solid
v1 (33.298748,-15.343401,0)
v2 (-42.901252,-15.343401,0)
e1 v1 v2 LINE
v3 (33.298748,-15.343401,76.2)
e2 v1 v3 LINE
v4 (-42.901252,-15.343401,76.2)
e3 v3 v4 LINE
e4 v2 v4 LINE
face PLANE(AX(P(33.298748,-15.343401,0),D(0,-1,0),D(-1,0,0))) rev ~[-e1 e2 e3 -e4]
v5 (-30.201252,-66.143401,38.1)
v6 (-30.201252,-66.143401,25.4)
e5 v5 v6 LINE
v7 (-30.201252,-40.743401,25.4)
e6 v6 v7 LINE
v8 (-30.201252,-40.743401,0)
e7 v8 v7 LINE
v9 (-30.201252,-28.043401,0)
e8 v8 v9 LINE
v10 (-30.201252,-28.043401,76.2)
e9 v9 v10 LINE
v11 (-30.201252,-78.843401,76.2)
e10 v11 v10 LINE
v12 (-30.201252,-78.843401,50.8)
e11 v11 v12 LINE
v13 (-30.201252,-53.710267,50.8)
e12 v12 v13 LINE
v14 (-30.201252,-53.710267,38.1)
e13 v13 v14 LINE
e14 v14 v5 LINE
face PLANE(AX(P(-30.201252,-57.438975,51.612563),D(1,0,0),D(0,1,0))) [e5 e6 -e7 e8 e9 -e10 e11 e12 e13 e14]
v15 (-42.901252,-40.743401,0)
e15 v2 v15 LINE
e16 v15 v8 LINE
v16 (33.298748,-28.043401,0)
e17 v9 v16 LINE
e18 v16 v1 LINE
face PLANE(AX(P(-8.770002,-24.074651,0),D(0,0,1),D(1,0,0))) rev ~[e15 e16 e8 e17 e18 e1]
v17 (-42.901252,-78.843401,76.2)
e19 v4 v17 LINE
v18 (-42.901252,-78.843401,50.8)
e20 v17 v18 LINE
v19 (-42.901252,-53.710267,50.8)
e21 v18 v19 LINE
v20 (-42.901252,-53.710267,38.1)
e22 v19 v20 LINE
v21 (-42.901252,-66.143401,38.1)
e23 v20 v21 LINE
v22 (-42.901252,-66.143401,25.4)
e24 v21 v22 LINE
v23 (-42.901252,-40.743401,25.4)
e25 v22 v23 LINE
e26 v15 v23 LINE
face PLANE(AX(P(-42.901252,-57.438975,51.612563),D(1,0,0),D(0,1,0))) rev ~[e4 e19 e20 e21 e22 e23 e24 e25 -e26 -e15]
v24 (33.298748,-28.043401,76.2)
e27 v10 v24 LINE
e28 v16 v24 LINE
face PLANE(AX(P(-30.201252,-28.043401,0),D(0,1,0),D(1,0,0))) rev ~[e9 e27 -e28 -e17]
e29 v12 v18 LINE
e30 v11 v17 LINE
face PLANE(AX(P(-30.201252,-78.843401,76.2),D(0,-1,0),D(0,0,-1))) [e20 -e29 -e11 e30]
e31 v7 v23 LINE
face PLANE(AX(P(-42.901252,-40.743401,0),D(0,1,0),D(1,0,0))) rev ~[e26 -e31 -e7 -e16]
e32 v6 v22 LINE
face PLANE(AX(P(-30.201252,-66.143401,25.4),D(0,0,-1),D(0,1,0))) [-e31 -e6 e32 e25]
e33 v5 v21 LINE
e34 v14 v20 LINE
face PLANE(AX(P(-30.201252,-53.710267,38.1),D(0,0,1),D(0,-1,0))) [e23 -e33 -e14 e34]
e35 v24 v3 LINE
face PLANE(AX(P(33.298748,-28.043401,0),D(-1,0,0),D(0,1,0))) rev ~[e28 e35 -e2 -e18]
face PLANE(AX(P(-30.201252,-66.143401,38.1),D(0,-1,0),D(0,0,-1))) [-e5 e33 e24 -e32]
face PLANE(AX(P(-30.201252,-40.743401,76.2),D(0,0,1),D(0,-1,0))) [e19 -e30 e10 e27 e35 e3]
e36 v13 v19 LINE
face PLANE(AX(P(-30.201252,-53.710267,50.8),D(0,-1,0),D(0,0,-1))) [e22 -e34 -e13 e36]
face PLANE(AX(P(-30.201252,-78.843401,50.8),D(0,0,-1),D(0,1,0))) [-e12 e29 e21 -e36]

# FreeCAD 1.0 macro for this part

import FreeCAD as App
import Part
import Sketcher

V = App.Vector
Q = App.Units.Quantity


def add_polygon(sketch, points):
    """Adds a closed chain of lines whose ends are joined by coincident constraints."""
    first, n = sketch.GeometryCount, len(points)
    for a, b in zip(points, points[1:] + points[:1]):
        sketch.addGeometry(Part.LineSegment(App.Vector(*a, 0), App.Vector(*b, 0)), False)
    for i in range(n):
        sketch.addConstraint(Sketcher.Constraint("Coincident", first + i, 2, first + (i + 1) % n, 1))

doc = App.newDocument("Part")
body = doc.addObject("PartDesign::Body", "Body")

# Sketch on XY plane
sketch1 = doc.addObject("Sketcher::SketchObject", "Sketch")
body.addObject(sketch1)
sketch1.AttachmentSupport = (doc.XY_Plane, [""])
sketch1.MapMode = "FlatFace"
add_polygon(sketch1, [(-42.901252, -15.343401), (-42.901252, -40.743401), (-30.201252, -40.743401), (-30.201252, -28.043401), (33.298748, -28.043401), (33.298748, -15.343401)])  # lines 0-5
sketch1.addConstraint([
    Sketcher.Constraint("Vertical", 0),
    Sketcher.Constraint("Horizontal", 1),
    Sketcher.Constraint("Vertical", 2),
    Sketcher.Constraint("Horizontal", 3),
    Sketcher.Constraint("Vertical", 4),
    Sketcher.Constraint("Horizontal", 5),
    Sketcher.Constraint("Equal", 1, 2),
    Sketcher.Constraint("Equal", 2, 4),
    Sketcher.Constraint("DistanceX", 5, 2, 5, 1, Q("3 in")),
    Sketcher.Constraint("DistanceY", 0, 2, 0, 1, Q("1 in")),
    Sketcher.Constraint("DistanceY", 0, 2, -1, 1, Q("40.743401 mm")),
    Sketcher.Constraint("DistanceX", 1, 2, -1, 1, Q("30.201252 mm")),
])
pad1 = doc.addObject("PartDesign::Pad", "Pad")
body.addObject(pad1)
pad1.Profile = sketch1
pad1.Length = Q("3 in")

# Sketch on YZ plane
sketch2 = doc.addObject("Sketcher::SketchObject", "Sketch001")
body.addObject(sketch2)
sketch2.AttachmentSupport = (doc.YZ_Plane, [""])
sketch2.MapMode = "FlatFace"
sketch2.AttachmentOffset = App.Placement(V(0, 0, -30.201252), App.Rotation())
add_polygon(sketch2, [(-40.743401, 25.4), (-40.743401, 76.2), (-78.843401, 76.2), (-78.843401, 50.8), (-53.710267, 50.8), (-53.710267, 38.1), (-66.143401, 38.1), (-66.143401, 25.4)])  # lines 0-7
sketch2.addConstraint([
    Sketcher.Constraint("Vertical", 0),
    Sketcher.Constraint("Horizontal", 1),
    Sketcher.Constraint("Vertical", 2),
    Sketcher.Constraint("Horizontal", 3),
    Sketcher.Constraint("Vertical", 4),
    Sketcher.Constraint("Horizontal", 5),
    Sketcher.Constraint("Vertical", 6),
    Sketcher.Constraint("Horizontal", 7),
    Sketcher.Constraint("Equal", 7, 2),
    Sketcher.Constraint("Equal", 4, 6),
    Sketcher.Constraint("DistanceX", 7, 1, 7, 2, Q("1 in")),
    Sketcher.Constraint("DistanceY", 0, 1, 0, 2, Q("2 in")),
    Sketcher.Constraint("DistanceX", 1, 2, 1, 1, Q("1.5 in")),
    Sketcher.Constraint("DistanceY", -1, 1, 0, 2, Q("3 in")),
    Sketcher.Constraint("DistanceX", 0, 2, -1, 1, Q("40.743401 mm")),
    Sketcher.Constraint("DistanceX", 3, 1, 3, 2, Q("25.133134 mm")),
])
pad2 = doc.addObject("PartDesign::Pad", "Pad001")
body.addObject(pad2)
pad2.Profile = sketch2
pad2.Length = Q("0.5 in")
pad2.Reversed = True

doc.recompute()
